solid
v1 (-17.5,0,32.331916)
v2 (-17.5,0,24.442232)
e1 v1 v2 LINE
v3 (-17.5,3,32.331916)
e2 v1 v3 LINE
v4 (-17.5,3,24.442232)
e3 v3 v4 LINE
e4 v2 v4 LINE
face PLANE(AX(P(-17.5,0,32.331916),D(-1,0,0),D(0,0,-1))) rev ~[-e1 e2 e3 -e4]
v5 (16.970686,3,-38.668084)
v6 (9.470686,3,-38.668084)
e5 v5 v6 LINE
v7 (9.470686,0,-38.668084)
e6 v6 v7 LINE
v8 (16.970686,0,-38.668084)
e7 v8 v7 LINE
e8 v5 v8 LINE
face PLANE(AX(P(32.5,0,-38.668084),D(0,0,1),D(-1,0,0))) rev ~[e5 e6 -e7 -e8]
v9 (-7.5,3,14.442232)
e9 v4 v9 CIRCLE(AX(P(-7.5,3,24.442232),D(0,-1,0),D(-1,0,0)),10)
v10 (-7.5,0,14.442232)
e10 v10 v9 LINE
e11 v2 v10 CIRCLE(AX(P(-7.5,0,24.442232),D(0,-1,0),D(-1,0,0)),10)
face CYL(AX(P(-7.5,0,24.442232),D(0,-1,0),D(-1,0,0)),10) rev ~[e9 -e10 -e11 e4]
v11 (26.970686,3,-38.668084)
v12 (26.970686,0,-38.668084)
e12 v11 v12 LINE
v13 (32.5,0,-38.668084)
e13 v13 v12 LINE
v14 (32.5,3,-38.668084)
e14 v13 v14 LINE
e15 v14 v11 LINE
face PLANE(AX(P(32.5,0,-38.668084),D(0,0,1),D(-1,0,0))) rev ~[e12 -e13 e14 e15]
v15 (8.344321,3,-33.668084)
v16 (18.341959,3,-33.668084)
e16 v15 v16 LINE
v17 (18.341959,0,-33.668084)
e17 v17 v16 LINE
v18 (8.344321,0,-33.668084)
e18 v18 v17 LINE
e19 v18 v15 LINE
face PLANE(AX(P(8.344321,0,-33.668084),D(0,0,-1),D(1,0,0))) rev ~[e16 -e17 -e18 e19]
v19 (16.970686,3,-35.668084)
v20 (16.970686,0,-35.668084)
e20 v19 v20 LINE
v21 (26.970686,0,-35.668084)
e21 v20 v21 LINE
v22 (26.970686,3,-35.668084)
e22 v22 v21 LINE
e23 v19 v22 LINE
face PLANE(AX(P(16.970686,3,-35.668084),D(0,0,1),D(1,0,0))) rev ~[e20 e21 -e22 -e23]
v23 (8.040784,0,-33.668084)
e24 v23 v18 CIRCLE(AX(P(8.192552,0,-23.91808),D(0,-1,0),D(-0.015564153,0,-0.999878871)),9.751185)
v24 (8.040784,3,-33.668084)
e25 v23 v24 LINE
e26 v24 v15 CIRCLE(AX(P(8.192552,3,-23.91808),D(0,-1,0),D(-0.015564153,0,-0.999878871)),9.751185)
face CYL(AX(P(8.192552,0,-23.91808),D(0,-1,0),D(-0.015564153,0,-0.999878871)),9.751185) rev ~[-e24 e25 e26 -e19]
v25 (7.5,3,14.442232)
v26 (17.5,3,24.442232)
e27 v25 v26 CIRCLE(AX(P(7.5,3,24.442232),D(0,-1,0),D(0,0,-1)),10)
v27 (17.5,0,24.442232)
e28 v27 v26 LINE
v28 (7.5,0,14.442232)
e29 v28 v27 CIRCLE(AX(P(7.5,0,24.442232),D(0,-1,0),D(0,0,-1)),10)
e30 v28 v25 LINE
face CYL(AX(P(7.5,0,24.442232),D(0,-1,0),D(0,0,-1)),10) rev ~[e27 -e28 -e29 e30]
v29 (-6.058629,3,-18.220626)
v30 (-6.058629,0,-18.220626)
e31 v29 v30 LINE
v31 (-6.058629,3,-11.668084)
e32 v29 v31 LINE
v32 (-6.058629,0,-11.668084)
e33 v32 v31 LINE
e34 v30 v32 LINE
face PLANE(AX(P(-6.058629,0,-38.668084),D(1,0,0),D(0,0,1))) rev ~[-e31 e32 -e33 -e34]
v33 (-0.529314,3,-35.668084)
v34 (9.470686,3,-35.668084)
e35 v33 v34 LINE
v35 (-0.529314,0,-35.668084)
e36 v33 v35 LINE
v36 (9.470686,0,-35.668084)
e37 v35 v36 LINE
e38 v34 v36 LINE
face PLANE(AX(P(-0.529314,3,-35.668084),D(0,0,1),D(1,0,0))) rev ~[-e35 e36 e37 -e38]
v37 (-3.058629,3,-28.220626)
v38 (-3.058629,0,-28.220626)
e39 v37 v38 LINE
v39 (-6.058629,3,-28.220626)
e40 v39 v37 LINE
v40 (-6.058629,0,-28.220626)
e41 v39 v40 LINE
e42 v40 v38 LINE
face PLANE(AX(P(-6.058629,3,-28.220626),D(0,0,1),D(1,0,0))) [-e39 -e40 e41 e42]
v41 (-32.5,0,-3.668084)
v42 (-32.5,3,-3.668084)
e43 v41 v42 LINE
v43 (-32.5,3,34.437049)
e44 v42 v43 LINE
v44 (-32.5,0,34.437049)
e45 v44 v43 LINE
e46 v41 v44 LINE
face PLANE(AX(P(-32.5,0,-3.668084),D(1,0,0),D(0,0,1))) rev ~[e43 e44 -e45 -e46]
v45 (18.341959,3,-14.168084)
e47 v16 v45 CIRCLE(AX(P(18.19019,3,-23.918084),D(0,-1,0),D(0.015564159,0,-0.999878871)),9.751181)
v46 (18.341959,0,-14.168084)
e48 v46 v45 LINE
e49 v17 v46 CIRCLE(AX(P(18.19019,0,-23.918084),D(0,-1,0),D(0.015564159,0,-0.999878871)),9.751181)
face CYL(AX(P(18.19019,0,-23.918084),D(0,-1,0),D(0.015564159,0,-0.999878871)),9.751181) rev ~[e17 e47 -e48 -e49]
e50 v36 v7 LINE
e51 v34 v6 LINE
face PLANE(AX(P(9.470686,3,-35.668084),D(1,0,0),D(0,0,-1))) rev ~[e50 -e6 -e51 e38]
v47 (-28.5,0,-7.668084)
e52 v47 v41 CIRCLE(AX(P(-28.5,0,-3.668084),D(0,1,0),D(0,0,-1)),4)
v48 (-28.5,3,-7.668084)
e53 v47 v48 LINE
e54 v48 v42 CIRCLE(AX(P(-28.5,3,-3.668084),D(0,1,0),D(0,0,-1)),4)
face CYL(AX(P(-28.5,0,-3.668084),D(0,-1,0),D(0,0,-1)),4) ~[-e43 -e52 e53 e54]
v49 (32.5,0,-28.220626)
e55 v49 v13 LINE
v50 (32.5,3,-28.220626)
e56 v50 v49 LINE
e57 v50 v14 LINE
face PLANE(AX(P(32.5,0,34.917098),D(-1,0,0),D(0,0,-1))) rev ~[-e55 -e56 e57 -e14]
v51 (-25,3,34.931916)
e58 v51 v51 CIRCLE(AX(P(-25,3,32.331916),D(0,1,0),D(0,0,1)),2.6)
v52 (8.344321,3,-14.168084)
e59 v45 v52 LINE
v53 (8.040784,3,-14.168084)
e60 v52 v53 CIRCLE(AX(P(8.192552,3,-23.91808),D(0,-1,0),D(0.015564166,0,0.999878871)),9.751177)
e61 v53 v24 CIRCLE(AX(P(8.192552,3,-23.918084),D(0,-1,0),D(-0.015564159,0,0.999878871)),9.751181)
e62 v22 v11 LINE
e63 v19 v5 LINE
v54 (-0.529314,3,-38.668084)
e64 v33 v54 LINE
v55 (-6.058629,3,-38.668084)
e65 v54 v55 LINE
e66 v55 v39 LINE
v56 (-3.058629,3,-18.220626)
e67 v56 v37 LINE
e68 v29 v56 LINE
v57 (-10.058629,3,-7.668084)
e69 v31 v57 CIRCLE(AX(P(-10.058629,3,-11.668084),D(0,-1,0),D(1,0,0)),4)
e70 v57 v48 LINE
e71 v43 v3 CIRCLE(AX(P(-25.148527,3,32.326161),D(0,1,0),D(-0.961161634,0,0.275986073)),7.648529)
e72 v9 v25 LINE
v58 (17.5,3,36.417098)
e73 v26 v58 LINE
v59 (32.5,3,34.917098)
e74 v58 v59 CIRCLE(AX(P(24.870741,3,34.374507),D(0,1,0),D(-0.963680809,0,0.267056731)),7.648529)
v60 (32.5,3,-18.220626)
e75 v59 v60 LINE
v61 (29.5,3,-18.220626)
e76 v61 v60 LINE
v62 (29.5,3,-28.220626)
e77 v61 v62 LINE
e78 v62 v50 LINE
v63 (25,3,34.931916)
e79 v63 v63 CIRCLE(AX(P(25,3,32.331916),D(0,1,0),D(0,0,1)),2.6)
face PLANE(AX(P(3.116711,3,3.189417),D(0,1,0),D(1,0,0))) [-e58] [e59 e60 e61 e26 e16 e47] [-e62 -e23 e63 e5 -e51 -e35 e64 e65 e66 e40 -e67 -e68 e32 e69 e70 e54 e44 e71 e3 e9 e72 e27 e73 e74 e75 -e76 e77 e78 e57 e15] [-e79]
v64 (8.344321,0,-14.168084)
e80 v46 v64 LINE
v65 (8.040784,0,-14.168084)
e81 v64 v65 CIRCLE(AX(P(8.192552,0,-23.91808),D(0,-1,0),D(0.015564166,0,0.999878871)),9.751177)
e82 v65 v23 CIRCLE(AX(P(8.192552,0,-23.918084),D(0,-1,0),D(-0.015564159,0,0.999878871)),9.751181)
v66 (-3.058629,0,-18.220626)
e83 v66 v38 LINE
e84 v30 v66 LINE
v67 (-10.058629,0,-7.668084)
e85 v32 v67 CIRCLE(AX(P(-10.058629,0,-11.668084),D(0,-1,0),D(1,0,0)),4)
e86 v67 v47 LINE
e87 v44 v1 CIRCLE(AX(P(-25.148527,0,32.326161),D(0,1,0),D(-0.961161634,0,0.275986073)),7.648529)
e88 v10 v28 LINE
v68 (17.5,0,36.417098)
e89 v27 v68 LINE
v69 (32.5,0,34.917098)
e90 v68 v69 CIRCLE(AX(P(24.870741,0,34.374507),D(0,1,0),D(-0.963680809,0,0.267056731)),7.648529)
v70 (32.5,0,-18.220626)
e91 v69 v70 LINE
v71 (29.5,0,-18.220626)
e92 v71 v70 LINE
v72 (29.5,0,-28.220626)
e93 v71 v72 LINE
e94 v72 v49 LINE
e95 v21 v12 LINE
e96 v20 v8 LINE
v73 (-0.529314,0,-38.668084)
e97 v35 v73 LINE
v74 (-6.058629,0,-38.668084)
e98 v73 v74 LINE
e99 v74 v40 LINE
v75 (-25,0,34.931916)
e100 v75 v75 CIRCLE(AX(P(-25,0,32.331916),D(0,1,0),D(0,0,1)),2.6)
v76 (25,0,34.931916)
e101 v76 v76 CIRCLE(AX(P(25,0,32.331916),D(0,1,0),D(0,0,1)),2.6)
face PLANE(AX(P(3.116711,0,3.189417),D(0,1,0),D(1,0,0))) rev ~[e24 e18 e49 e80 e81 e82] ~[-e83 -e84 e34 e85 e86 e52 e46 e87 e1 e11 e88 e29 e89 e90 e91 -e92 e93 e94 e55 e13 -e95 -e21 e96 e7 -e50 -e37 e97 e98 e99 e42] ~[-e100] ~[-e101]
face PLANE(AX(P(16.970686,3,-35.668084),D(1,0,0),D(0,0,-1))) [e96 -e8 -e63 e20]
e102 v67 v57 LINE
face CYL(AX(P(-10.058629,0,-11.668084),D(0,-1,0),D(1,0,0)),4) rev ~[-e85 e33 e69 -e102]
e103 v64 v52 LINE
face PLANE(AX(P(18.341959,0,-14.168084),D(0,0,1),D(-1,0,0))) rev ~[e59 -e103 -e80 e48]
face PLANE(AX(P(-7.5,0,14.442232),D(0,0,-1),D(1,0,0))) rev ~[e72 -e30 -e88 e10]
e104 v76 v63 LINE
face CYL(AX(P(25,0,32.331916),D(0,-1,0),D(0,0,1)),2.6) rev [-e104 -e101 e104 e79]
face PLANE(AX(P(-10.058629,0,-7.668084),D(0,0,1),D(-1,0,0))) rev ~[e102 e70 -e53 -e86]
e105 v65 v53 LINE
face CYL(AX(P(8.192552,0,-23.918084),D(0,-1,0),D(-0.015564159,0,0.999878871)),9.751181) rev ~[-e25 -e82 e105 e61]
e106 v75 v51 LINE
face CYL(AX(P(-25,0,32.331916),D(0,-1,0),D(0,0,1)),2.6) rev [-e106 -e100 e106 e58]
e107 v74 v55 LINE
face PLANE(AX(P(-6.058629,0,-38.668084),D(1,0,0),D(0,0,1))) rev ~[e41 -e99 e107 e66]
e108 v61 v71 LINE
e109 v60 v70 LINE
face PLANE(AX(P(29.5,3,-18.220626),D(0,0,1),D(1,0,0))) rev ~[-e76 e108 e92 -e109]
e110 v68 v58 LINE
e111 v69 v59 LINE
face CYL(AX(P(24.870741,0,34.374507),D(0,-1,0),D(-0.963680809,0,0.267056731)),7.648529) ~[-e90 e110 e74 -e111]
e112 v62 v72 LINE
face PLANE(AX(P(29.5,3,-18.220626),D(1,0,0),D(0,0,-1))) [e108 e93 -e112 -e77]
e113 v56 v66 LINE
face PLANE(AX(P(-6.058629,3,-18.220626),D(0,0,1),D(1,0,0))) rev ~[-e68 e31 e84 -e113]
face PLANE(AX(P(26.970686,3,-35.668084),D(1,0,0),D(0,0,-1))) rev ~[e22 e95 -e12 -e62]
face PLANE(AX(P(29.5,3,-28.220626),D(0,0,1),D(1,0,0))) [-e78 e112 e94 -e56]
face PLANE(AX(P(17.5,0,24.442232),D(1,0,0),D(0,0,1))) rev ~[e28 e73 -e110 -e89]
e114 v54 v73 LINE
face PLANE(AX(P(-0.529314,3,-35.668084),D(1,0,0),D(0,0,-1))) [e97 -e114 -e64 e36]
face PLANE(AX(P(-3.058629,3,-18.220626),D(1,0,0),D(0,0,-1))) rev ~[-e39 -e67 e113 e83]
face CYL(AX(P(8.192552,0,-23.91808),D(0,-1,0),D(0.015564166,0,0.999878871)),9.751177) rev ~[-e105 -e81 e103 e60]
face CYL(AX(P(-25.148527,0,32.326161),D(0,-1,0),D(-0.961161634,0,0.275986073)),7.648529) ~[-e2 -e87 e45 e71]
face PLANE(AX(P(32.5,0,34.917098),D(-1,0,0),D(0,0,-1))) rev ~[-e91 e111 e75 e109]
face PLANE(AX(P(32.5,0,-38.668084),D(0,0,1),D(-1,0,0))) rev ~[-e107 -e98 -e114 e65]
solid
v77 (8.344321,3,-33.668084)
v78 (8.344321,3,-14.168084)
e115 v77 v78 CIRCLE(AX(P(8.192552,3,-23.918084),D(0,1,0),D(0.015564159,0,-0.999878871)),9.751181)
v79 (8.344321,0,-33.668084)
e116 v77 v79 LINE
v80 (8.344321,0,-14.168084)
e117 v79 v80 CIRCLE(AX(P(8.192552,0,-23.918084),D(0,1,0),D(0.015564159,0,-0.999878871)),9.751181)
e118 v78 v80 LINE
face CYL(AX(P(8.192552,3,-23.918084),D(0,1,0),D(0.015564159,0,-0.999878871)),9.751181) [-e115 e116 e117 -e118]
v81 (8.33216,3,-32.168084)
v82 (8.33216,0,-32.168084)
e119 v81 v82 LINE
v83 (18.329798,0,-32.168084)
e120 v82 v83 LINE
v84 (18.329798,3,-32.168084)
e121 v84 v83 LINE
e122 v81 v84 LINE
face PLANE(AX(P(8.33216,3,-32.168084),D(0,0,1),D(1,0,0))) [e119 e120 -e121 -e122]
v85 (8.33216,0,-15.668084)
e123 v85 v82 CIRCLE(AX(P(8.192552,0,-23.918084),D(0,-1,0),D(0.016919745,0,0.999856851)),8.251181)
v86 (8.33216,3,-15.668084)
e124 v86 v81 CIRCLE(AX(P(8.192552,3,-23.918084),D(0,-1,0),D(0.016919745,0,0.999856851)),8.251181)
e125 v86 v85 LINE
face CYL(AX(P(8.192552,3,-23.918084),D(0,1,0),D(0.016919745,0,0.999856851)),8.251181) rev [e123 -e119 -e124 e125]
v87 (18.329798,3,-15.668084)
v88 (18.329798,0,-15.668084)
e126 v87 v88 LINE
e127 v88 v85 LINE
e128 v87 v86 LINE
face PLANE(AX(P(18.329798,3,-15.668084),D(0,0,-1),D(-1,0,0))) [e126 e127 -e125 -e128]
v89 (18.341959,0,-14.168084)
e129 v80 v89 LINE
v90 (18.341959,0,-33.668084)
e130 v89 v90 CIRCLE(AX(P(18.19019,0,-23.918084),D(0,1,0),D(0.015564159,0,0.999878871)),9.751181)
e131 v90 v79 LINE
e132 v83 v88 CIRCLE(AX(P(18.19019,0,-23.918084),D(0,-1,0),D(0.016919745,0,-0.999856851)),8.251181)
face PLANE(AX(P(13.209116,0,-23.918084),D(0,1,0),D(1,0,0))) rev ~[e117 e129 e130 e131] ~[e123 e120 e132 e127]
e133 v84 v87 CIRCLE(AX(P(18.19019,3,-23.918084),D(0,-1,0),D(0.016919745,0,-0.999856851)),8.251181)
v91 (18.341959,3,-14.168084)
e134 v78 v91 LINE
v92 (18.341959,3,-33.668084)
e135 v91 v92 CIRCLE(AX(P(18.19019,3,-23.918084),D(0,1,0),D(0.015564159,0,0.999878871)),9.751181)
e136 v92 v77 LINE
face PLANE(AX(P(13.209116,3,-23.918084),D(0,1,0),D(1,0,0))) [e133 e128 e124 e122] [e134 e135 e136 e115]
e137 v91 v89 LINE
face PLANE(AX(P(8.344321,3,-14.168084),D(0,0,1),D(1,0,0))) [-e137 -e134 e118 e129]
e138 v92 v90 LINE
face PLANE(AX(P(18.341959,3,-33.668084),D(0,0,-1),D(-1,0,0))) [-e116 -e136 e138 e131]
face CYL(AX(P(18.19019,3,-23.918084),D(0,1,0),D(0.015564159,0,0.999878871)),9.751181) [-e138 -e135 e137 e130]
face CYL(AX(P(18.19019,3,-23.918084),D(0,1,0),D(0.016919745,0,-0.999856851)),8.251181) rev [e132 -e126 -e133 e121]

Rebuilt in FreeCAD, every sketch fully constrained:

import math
import FreeCAD as App
import Part
import Sketcher
from FreeCAD import Vector
Q = App.Units.Quantity


def add_polygon(sketch, points):
    """Adds a closed chain of lines whose ends are joined by coincident constraints."""
    first, n = sketch.GeometryCount, len(points)
    for a, b in zip(points, points[1:] + points[:1]):
        sketch.addGeometry(Part.LineSegment(App.Vector(*a, 0), App.Vector(*b, 0)), False)
    for i in range(n):
        sketch.addConstraint(Sketcher.Constraint("Coincident", first + i, 2, first + (i + 1) % n, 1))

doc = App.newDocument("Part")
body = doc.addObject("PartDesign::Body", "Body")

# Sketch on XZ plane
sketch1 = body.newObject("Sketcher::SketchObject", "Sketch")
sketch1.AttachmentSupport = (doc.getObject("XZ_Plane"), [""])
sketch1.MapMode = "FlatFace"
sketch1.addGeometry([
    Part.ArcOfCircle(Part.Circle(Vector(-25.15, 32.33, 0), Vector(0, 0, 1), 7.65), math.radians(0), math.radians(164)),  # 0
    Part.LineSegment(Vector(-17.5, 32.33, 0), Vector(-17.5, 24.44, 0)),  # 1
    Part.ArcOfCircle(Part.Circle(Vector(-7.5, 24.44, 0), Vector(0, 0, 1), 10), math.radians(180), math.radians(270)),  # 2
    Part.LineSegment(Vector(-7.5, 14.44, 0), Vector(7.5, 14.44, 0)),  # 3
    Part.ArcOfCircle(Part.Circle(Vector(7.5, 24.44, 0), Vector(0, 0, 1), 10), math.radians(-90), math.radians(0)),  # 4
    Part.LineSegment(Vector(17.5, 24.44, 0), Vector(17.5, 36.42, 0)),  # 5
    Part.ArcOfCircle(Part.Circle(Vector(24.87, 34.37, 0), Vector(0, 0, 1), 7.65), math.radians(4), math.radians(165)),  # 6
    Part.LineSegment(Vector(32.5, 34.92, 0), Vector(32.5, -38.67, 0)),  # 7
    Part.LineSegment(Vector(32.5, -38.67, 0), Vector(-6.06, -38.67, 0)),  # 8
    Part.LineSegment(Vector(-6.06, -38.67, 0), Vector(-6.06, -11.67, 0)),  # 9
    Part.ArcOfCircle(Part.Circle(Vector(-10.06, -11.67, 0), Vector(0, 0, 1), 4), math.radians(0), math.radians(90)),  # 10
    Part.LineSegment(Vector(-10.06, -7.67, 0), Vector(-28.5, -7.67, 0)),  # 11
    Part.ArcOfCircle(Part.Circle(Vector(-28.5, -3.67, 0), Vector(0, 0, 1), 4), math.radians(180), math.radians(270)),  # 12
    Part.LineSegment(Vector(-32.5, -3.67, 0), Vector(-32.5, 34.44, 0)),  # 13
    Part.Circle(Vector(-25, 32.33, 0), Vector(0, 0, 1), 2.6),  # 14
    Part.Circle(Vector(25, 32.33, 0), Vector(0, 0, 1), 2.6),  # 15
    Part.LineSegment(Vector(18.34, -14.17, 0), Vector(8.34, -14.17, 0)),  # 16
    Part.ArcOfCircle(Part.Circle(Vector(8.19, -23.92, 0), Vector(0, 0, 1), 9.75), math.radians(89.11), math.radians(90.89)),  # 17
    Part.ArcOfCircle(Part.Circle(Vector(8.19, -23.92, 0), Vector(0, 0, 1), 9.75), math.radians(91), math.radians(269)),  # 18
    Part.ArcOfCircle(Part.Circle(Vector(8.19, -23.92, 0), Vector(0, 0, 1), 9.75), math.radians(-90.89), math.radians(-89.11)),  # 19
    Part.LineSegment(Vector(8.34, -33.67, 0), Vector(18.34, -33.67, 0)),  # 20
    Part.ArcOfCircle(Part.Circle(Vector(18.19, -23.92, 0), Vector(0, 0, 1), 9.75), math.radians(-89), math.radians(89)),  # 21
], False)
sketch1.addConstraint([
    Sketcher.Constraint("Coincident", 0, 1, 1, 1),
    Sketcher.Constraint("Tangent", 1, 2, 2, 1),
    Sketcher.Constraint("Tangent", 2, 2, 3, 1),
    Sketcher.Constraint("Tangent", 3, 2, 4, 1),
    Sketcher.Constraint("Tangent", 4, 2, 5, 1),
    Sketcher.Constraint("Coincident", 5, 2, 6, 2),
    Sketcher.Constraint("Coincident", 6, 1, 7, 1),
    Sketcher.Constraint("Coincident", 7, 2, 8, 1),
    Sketcher.Constraint("Coincident", 8, 2, 9, 1),
    Sketcher.Constraint("Tangent", 9, 2, 10, 1),
    Sketcher.Constraint("Tangent", 10, 2, 11, 1),
    Sketcher.Constraint("Tangent", 11, 2, 12, 2),
    Sketcher.Constraint("Tangent", 12, 1, 13, 1),
    Sketcher.Constraint("Coincident", 13, 2, 0, 2),
    Sketcher.Constraint("Coincident", 16, 2, 17, 1),
    Sketcher.Constraint("Tangent", 17, 2, 18, 1),
    Sketcher.Constraint("Tangent", 18, 2, 19, 1),
    Sketcher.Constraint("Coincident", 19, 2, 20, 1),
    Sketcher.Constraint("Coincident", 20, 2, 21, 1),
    Sketcher.Constraint("Coincident", 21, 2, 16, 1),
    Sketcher.Constraint("Vertical", 1),
    Sketcher.Constraint("Horizontal", 3),
    Sketcher.Constraint("Vertical", 5),
    Sketcher.Constraint("Vertical", 7),
    Sketcher.Constraint("Horizontal", 8),
    Sketcher.Constraint("Vertical", 9),
    Sketcher.Constraint("Horizontal", 11),
    Sketcher.Constraint("Vertical", 13),
    Sketcher.Constraint("Horizontal", 16),
    Sketcher.Constraint("Horizontal", 20),
    Sketcher.Constraint("Coincident", 19, 3, 17, 3),
    Sketcher.Constraint("Equal", 2, 4),
    Sketcher.Constraint("Equal", 0, 6),
    Sketcher.Constraint("Equal", 10, 12),
    Sketcher.Constraint("Equal", 14, 15),
    Sketcher.Constraint("Equal", 18, 21),
    Sketcher.Constraint("Symmetric", 14, 3, 15, 3, -2),
    Sketcher.Constraint("Horizontal", 18, 3, 21, 3),
    Sketcher.Constraint("Horizontal", 15, 3, 0, 1),
    Sketcher.Constraint("Horizontal", 16, 2, 17, 2),
    Sketcher.Constraint("Horizontal", 18, 2, 19, 2),
    Sketcher.Constraint("Vertical", 17, 2, 18, 2),
    Sketcher.Constraint("Radius", 2, Q("10 mm")),
    Sketcher.Constraint("Radius", 10, Q("4 mm")),
    Sketcher.Constraint("Diameter", 14, Q("5.2 mm")),
    Sketcher.Constraint("DistanceX", 3, 1, 3, 2, Q("15 mm")),
    Sketcher.Constraint("DistanceY", 9, 1, 9, 2, Q("27 mm")),
    Sketcher.Constraint("DistanceX", 14, 3, -1, 1, Q("25 mm")),
    Sketcher.Constraint("DistanceX", 12, 3, 2, 3, Q("21 mm")),
    Sketcher.Constraint("DistanceY", 12, 3, 14, 3, Q("36 mm")),
    Sketcher.Constraint("DistanceX", 5, 2, 6, 1, Q("15 mm")),
    Sketcher.Constraint("DistanceY", 8, 2, 18, 2, Q("5 mm")),
    Sketcher.Constraint("DistanceX", 2, 3, -1, 1, Q("7.5 mm")),
    Sketcher.Constraint("DistanceY", 6, 1, 5, 2, Q("1.5 mm")),
    Sketcher.Constraint("DistanceY", 16, 2, 9, 2, Q("2.5 mm")),
    Sketcher.Constraint("Radius", 0, Q("7.648529 mm")),
    Sketcher.Constraint("Radius", 18, Q("9.751181 mm")),
    Sketcher.Constraint("DistanceX", 8, 2, 8, 1, Q("38.558629 mm")),
    Sketcher.Constraint("DistanceY", -1, 1, 5, 2, Q("36.417098 mm")),
    Sketcher.Constraint("DistanceX", 16, 2, 16, 1, Q("9.997638 mm")),
    Sketcher.Constraint("DistanceY", 1, 2, 1, 1, Q("7.889684 mm")),
    Sketcher.Constraint("DistanceY", 5, 1, 5, 2, Q("11.974867 mm")),
    Sketcher.Constraint("DistanceY", 13, 1, 13, 2, Q("38.105133 mm")),
    Sketcher.Constraint("DistanceX", -1, 1, 21, 3, Q("18.19019 mm")),
])
pad1 = body.newObject("PartDesign::Pad", "Pad")
pad1.Profile = sketch1
pad1.Length = 3
pad1.Reversed = True

# Sketch on XZ plane
sketch2 = body.newObject("Sketcher::SketchObject", "Sketch001")
sketch2.AttachmentSupport = (doc.getObject("XZ_Plane"), [""])
sketch2.MapMode = "FlatFace"
sketch2.AttachmentOffset = App.Placement(Vector(0, 0, -3), App.Rotation())
add_polygon(sketch2, [(-0.5, -38.7), (-0.5, -35.7), (9.5, -35.7), (9.5, -38.7)])  # lines 0-3
add_polygon(sketch2, [(-6.1, -28.2), (-6.1, -18.2), (-3.1, -18.2), (-3.1, -28.2)])  # lines 4-7
add_polygon(sketch2, [(17, -38.7), (17, -35.7), (27, -35.7), (27, -38.7)])  # lines 8-11
add_polygon(sketch2, [(29.5, -28.2), (29.5, -18.2), (32.5, -18.2), (32.5, -28.2)])  # lines 12-15
sketch2.addConstraint([
    Sketcher.Constraint("Vertical", 0),
    Sketcher.Constraint("Horizontal", 1),
    Sketcher.Constraint("Vertical", 2),
    Sketcher.Constraint("Horizontal", 3),
    Sketcher.Constraint("Vertical", 4),
    Sketcher.Constraint("Horizontal", 5),
    Sketcher.Constraint("Vertical", 6),
    Sketcher.Constraint("Horizontal", 7),
    Sketcher.Constraint("Vertical", 8),
    Sketcher.Constraint("Horizontal", 9),
    Sketcher.Constraint("Vertical", 10),
    Sketcher.Constraint("Horizontal", 11),
    Sketcher.Constraint("Vertical", 12),
    Sketcher.Constraint("Horizontal", 13),
    Sketcher.Constraint("Vertical", 14),
    Sketcher.Constraint("Horizontal", 15),
    Sketcher.Constraint("Horizontal", 1, 2, 8, 2),
    Sketcher.Constraint("Horizontal", 3, 2, 10, 2),
    Sketcher.Constraint("Horizontal", 5, 2, 12, 2),
    Sketcher.Constraint("Horizontal", 7, 2, 14, 2),
    Sketcher.Constraint("Equal", 3, 9),
    Sketcher.Constraint("Equal", 7, 13),
    Sketcher.Constraint("Equal", 15, 0),
    Sketcher.Constraint("Equal", 11, 4),
    Sketcher.Constraint("DistanceX", 1, 1, 1, 2, Q("10 mm")),
    Sketcher.Constraint("DistanceX", 5, 1, 5, 2, Q("3 mm")),
    Sketcher.Constraint("DistanceX", -1, 1, 12, 2, Q("29.5 mm")),
    Sketcher.Constraint("DistanceX", 1, 2, 8, 2, Q("7.5 mm")),
    Sketcher.Constraint("DistanceX", 4, 2, -1, 1, Q("6.058629 mm")),
    Sketcher.Constraint("DistanceY", 0, 2, 4, 2, Q("17.447458 mm")),
    Sketcher.Constraint("DistanceX", 0, 2, -1, 1, Q("0.529314 mm")),
    Sketcher.Constraint("DistanceY", 0, 2, -1, 1, Q("35.668084 mm")),
])
pocket1 = body.newObject("PartDesign::Pocket", "Pocket")
pocket1.Profile = sketch2
pocket1.Length = 3
pocket1.Reversed = True
body2 = doc.addObject("PartDesign::Body", "Body001")

# Sketch on XZ plane
sketch3 = body2.newObject("Sketcher::SketchObject", "Sketch002")
sketch3.AttachmentSupport = (doc.getObject("XZ_Plane001"), [""])
sketch3.MapMode = "FlatFace"
sketch3.AttachmentOffset = App.Placement(Vector(0, 0, -3), App.Rotation())
sketch3.addGeometry([
    Part.ArcOfCircle(Part.Circle(Vector(8, -24, 0), Vector(0, 0, 1), 10), math.radians(89), math.radians(271)),  # 0
    Part.LineSegment(Vector(8, -14, 0), Vector(18, -14, 0)),  # 1
    Part.ArcOfCircle(Part.Circle(Vector(18, -24, 0), Vector(0, 0, 1), 10), math.radians(-89), math.radians(89)),  # 2
    Part.LineSegment(Vector(18, -34, 0), Vector(8, -34, 0)),  # 3
    Part.LineSegment(Vector(18, -16, 0), Vector(8, -16, 0)),  # 4
    Part.ArcOfCircle(Part.Circle(Vector(8, -24, 0), Vector(0, 0, 1), 8), math.radians(89), math.radians(271)),  # 5
    Part.LineSegment(Vector(8, -32, 0), Vector(18, -32, 0)),  # 6
    Part.ArcOfCircle(Part.Circle(Vector(18, -24, 0), Vector(0, 0, 1), 8), math.radians(-89), math.radians(89)),  # 7
], False)
sketch3.addConstraint([
    Sketcher.Constraint("Coincident", 0, 1, 1, 1),
    Sketcher.Constraint("Coincident", 1, 2, 2, 2),
    Sketcher.Constraint("Coincident", 2, 1, 3, 1),
    Sketcher.Constraint("Coincident", 3, 2, 0, 2),
    Sketcher.Constraint("Coincident", 4, 2, 5, 1),
    Sketcher.Constraint("Coincident", 5, 2, 6, 1),
    Sketcher.Constraint("Coincident", 6, 2, 7, 1),
    Sketcher.Constraint("Coincident", 7, 2, 4, 1),
    Sketcher.Constraint("Horizontal", 1),
    Sketcher.Constraint("Horizontal", 3),
    Sketcher.Constraint("Horizontal", 4),
    Sketcher.Constraint("Horizontal", 6),
    Sketcher.Constraint("Coincident", 5, 3, 0, 3),
    Sketcher.Constraint("Coincident", 7, 3, 2, 3),
    Sketcher.Constraint("Equal", 0, 2),
    Sketcher.Constraint("Equal", 5, 7),
    Sketcher.Constraint("Horizontal", 0, 3, 2, 3),
    Sketcher.Constraint("Vertical", 1, 2, 2, 1),
    Sketcher.Constraint("Vertical", 4, 2, 5, 2),
    Sketcher.Constraint("DistanceY", 2, 1, 1, 2, Q("19.5 mm")),
    Sketcher.Constraint("DistanceY", 4, 2, 0, 1, Q("1.5 mm")),
    Sketcher.Constraint("Radius", 0, Q("9.751181 mm")),
    Sketcher.Constraint("Radius", 5, Q("8.251181 mm")),
    Sketcher.Constraint("DistanceX", -1, 1, 6, 2, Q("18.329798 mm")),
    Sketcher.Constraint("DistanceX", 4, 2, 1, 2, Q("10.009799 mm")),
    Sketcher.Constraint("DistanceY", 0, 3, -1, 1, Q("23.918084 mm")),
])
pad2 = body2.newObject("PartDesign::Pad", "Pad001")
pad2.Profile = sketch3
pad2.Length = 3

doc.recompute()
